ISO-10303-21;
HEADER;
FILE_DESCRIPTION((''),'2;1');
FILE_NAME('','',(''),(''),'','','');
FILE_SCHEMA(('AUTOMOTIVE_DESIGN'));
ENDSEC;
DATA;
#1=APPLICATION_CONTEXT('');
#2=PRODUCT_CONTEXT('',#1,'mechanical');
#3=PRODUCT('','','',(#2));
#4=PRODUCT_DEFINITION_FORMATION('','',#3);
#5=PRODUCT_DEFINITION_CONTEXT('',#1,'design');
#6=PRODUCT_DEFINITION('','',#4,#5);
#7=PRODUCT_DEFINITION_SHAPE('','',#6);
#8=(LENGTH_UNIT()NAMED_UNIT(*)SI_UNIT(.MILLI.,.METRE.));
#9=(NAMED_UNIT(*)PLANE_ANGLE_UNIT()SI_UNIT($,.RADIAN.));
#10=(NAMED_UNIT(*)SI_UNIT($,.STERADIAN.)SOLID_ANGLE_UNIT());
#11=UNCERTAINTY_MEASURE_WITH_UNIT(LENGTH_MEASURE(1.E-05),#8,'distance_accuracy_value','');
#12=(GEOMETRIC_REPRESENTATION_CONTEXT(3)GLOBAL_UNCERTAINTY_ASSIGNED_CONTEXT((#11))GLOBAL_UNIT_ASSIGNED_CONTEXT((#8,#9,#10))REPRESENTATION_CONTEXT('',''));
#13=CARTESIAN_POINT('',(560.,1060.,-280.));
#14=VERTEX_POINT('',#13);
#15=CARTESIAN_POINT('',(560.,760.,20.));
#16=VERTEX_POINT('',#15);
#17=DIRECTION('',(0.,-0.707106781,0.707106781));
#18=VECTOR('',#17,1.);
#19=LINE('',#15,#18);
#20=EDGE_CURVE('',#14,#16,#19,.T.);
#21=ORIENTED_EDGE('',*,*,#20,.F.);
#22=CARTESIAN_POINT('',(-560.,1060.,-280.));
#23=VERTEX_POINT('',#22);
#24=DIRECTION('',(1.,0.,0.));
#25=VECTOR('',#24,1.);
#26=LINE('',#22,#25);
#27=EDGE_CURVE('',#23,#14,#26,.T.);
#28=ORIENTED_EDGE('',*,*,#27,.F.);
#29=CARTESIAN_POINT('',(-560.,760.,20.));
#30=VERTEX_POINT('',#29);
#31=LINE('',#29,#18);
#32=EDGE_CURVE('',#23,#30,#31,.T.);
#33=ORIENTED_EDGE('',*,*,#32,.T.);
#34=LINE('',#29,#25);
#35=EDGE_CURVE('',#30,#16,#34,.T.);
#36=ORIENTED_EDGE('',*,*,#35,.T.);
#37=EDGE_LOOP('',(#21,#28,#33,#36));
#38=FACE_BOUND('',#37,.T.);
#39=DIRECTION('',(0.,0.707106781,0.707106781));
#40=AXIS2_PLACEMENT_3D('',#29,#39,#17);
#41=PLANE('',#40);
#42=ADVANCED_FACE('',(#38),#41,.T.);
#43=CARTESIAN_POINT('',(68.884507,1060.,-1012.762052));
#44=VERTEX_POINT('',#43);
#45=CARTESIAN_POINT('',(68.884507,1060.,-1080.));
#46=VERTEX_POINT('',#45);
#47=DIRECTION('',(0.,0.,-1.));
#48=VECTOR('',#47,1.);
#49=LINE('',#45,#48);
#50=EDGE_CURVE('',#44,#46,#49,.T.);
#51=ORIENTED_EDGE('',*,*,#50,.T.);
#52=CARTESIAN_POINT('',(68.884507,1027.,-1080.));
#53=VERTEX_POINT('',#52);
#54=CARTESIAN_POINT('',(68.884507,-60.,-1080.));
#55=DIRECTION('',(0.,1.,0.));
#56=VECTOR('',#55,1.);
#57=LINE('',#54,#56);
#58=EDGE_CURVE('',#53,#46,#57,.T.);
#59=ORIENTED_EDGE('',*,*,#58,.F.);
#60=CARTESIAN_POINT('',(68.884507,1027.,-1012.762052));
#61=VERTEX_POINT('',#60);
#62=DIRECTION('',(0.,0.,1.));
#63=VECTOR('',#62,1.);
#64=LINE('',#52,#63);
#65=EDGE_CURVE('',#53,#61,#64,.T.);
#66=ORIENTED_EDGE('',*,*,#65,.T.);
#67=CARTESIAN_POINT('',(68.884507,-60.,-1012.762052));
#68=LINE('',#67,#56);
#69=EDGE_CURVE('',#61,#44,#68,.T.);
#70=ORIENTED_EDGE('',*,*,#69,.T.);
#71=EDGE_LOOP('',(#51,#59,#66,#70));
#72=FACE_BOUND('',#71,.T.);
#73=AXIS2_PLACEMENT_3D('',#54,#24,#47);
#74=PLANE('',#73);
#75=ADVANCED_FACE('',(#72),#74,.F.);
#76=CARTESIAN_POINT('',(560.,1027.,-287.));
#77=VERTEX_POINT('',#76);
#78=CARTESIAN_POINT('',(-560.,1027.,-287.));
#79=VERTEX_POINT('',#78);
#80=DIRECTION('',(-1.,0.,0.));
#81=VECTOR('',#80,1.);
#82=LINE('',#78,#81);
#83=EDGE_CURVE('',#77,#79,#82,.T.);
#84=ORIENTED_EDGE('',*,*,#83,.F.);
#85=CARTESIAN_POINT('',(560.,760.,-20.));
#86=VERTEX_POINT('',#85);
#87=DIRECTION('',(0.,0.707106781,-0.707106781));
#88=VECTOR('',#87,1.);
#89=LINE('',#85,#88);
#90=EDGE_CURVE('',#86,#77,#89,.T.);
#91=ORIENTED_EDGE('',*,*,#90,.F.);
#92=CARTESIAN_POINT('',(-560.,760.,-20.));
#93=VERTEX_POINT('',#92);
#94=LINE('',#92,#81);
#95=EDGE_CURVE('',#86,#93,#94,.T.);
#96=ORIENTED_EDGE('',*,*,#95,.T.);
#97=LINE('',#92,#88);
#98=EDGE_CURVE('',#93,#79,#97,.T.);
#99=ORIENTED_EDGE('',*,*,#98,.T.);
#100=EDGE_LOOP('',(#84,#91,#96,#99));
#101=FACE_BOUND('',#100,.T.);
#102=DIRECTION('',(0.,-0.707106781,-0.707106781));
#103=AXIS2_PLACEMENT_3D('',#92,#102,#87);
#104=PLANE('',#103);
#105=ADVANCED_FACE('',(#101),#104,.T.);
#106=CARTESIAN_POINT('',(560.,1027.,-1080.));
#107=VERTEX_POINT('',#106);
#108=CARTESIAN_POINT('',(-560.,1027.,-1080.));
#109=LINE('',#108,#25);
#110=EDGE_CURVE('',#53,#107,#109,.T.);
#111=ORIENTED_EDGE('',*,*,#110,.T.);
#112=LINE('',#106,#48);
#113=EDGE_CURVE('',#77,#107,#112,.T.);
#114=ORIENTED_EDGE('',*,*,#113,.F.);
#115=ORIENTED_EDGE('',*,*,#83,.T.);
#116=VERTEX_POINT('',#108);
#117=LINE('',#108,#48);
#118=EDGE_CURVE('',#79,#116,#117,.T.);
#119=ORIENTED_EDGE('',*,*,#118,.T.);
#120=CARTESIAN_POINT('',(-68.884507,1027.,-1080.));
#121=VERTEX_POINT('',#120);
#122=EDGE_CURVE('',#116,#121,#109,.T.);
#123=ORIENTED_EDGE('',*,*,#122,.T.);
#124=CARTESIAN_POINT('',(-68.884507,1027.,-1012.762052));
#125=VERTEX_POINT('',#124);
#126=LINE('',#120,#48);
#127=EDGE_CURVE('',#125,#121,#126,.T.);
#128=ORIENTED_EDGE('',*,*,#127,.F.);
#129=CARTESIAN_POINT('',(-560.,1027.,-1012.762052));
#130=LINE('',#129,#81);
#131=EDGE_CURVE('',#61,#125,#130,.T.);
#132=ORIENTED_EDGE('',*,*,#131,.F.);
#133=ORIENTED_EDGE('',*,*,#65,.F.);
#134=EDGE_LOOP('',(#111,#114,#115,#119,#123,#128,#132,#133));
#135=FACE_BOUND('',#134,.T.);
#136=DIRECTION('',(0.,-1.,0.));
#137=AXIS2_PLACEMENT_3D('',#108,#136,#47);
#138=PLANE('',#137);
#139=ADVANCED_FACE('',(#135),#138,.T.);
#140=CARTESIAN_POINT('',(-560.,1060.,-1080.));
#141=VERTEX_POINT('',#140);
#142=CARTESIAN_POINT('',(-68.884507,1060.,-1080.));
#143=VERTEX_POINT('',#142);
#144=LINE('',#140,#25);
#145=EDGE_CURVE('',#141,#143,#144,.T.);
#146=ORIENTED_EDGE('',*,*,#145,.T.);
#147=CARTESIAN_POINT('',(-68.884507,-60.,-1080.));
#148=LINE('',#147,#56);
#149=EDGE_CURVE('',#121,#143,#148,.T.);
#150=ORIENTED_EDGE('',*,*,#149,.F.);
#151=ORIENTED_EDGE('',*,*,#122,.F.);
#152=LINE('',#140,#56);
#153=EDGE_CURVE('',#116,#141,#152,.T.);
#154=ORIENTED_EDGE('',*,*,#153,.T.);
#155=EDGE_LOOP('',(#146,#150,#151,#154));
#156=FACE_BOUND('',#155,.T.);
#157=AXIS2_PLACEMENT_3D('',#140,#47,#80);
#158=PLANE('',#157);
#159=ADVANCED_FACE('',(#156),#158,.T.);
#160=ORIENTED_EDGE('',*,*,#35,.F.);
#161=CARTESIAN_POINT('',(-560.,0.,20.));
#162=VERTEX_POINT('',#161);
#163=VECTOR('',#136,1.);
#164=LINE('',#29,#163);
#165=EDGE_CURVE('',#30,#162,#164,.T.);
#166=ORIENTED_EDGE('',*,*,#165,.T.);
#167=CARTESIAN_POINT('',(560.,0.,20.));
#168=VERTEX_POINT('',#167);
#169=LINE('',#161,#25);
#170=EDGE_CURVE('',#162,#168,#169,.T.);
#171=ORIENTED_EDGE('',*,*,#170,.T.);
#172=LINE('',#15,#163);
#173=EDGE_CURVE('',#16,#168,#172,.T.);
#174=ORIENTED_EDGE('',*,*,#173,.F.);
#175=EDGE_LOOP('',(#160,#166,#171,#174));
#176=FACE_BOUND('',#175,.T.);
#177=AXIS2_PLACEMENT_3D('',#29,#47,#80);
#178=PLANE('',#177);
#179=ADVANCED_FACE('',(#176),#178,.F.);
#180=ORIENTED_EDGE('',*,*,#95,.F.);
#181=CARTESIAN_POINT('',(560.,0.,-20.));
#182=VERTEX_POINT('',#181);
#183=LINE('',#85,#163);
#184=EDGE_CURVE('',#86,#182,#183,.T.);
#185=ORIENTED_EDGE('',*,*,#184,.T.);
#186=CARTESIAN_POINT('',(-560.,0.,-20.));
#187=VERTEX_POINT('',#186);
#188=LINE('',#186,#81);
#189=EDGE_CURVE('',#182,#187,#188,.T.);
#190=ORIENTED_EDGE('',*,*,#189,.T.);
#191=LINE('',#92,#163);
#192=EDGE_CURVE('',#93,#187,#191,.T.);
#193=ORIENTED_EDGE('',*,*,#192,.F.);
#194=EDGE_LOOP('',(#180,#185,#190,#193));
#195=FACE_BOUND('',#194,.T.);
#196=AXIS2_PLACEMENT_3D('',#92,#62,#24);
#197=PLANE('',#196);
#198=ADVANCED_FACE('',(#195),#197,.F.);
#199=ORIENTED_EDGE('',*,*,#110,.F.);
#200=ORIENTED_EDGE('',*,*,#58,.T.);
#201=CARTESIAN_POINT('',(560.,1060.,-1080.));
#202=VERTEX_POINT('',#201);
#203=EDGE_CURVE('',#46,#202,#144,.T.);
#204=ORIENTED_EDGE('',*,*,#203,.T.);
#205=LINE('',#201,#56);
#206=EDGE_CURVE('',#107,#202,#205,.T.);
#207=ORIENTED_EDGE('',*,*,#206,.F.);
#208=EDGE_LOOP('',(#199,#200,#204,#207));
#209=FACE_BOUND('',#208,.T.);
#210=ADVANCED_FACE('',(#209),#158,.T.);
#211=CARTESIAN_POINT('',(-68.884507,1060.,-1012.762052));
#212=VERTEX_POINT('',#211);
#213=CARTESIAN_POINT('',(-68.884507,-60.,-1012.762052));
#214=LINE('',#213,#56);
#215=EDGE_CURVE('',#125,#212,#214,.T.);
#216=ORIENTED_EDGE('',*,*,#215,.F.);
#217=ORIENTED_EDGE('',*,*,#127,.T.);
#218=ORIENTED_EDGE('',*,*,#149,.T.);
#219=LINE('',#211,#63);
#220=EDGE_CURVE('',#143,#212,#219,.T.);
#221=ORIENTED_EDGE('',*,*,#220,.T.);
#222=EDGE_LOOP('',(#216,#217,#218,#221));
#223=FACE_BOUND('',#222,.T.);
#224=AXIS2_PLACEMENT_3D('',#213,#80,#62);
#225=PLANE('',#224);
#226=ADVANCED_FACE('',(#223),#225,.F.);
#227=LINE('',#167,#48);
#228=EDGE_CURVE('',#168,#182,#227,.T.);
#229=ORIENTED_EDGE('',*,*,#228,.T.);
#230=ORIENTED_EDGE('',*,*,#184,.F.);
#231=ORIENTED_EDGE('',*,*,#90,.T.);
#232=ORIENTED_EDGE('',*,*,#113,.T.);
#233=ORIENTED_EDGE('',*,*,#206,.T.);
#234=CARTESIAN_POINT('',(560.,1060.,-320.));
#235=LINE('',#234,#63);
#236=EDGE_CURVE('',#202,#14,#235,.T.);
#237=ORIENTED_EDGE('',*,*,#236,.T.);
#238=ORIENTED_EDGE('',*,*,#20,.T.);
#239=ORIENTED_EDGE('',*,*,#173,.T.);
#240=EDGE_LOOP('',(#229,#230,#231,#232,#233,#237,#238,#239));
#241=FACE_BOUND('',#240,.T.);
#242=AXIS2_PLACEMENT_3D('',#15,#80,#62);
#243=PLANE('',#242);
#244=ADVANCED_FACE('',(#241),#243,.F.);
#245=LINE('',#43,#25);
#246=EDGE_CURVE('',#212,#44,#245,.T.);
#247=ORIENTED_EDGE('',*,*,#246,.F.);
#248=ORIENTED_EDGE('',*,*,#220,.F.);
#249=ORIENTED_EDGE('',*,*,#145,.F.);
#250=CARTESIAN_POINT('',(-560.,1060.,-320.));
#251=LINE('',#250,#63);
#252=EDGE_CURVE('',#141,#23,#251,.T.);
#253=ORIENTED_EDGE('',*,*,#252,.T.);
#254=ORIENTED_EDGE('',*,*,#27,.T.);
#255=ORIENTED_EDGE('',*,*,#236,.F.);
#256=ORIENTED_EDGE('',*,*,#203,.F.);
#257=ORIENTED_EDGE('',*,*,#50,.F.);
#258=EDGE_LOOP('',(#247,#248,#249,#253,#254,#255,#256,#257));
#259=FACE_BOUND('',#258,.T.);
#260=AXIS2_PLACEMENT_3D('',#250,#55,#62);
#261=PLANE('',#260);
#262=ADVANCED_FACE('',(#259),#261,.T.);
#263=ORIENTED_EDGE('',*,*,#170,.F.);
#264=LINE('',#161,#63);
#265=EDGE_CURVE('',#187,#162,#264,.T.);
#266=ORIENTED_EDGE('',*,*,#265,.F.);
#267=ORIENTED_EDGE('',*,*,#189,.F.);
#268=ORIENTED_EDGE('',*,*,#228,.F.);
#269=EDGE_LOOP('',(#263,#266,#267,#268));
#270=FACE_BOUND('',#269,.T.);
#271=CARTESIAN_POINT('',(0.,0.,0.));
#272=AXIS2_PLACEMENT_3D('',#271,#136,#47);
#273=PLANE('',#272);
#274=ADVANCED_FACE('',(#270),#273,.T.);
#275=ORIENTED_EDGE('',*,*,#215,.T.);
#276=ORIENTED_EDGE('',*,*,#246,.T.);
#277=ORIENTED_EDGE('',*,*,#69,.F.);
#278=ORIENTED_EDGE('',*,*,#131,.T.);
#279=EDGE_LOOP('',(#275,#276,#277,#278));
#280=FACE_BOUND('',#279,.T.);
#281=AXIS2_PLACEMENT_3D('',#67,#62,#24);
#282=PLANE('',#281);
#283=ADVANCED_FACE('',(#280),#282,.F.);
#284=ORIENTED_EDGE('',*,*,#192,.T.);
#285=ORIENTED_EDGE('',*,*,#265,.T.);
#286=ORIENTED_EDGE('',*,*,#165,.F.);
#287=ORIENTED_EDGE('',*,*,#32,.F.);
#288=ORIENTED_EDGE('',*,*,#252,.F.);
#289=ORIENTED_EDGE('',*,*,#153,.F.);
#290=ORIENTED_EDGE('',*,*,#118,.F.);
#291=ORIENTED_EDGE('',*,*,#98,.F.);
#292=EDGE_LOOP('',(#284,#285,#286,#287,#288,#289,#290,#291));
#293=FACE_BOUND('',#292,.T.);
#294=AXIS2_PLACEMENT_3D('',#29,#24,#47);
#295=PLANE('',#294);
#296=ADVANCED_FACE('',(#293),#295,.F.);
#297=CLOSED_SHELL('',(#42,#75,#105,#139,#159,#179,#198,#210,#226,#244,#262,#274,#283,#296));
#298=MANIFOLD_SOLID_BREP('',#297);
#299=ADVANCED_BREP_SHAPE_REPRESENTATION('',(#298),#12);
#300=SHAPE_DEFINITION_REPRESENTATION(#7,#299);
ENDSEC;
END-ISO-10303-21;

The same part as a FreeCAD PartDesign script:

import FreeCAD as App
import Part
import Sketcher
from FreeCAD import Vector
Q = App.Units.Quantity

doc = App.newDocument("Part")
body = doc.addObject("PartDesign::Body", "Body")

sketch1 = body.newObject("Sketcher::SketchObject", "Sketch")
sketch1.AttachmentSupport = (doc.getObject("XZ_Plane"), [""])
sketch1.MapMode = "FlatFace"
sketch1.addGeometry(Part.LineSegment(Vector(-560, -20, 0), Vector(-560, 20, 0)), False)
sketch1.addGeometry(Part.LineSegment(Vector(-560, 20, 0), Vector(560, 20, 0)), False)
sketch1.addGeometry(Part.LineSegment(Vector(560, 20, 0), Vector(560, -20, 0)), False)
sketch1.addGeometry(Part.LineSegment(Vector(560, -20, 0), Vector(-560, -20, 0)), False)
sketch1.addConstraint(Sketcher.Constraint("Coincident", 0, 2, 1, 1))
sketch1.addConstraint(Sketcher.Constraint("Coincident", 1, 2, 2, 1))
sketch1.addConstraint(Sketcher.Constraint("Coincident", 2, 2, 3, 1))
sketch1.addConstraint(Sketcher.Constraint("Coincident", 3, 2, 0, 1))
sketch1.addConstraint(Sketcher.Constraint("Vertical", 0))
sketch1.addConstraint(Sketcher.Constraint("Horizontal", 1))
sketch1.addConstraint(Sketcher.Constraint("Vertical", 2))
sketch1.addConstraint(Sketcher.Constraint("Horizontal", 3))
sketch1.addConstraint(Sketcher.Constraint("Symmetric", 0, 2, 2, 2, -1, 1))
sketch1.addConstraint(Sketcher.Constraint("DistanceX", 1, 1, 1, 2, 1120.0))
sketch1.addConstraint(Sketcher.Constraint("DistanceY", 0, 1, 0, 2, 40.0))
pad1 = body.newObject("PartDesign::Pad", "Pad")
pad1.Profile = sketch1
pad1.Length = 760
pad1.Reversed = True

sketch2 = body.newObject("Sketcher::SketchObject", "Sketch001")
sketch2.AttachmentSupport = (doc.getObject("YZ_Plane"), [""])
sketch2.MapMode = "FlatFace"
sketch2.AttachmentOffset = App.Placement(Vector(0, 0, 560), App.Rotation())
sketch2.addGeometry(Part.LineSegment(Vector(1060, -280, 0), Vector(760, 20, 0)), False)
sketch2.addGeometry(Part.LineSegment(Vector(760, 20, 0), Vector(760, -20, 0)), False)
sketch2.addGeometry(Part.LineSegment(Vector(760, -20, 0), Vector(1060, -320, 0)), False)
sketch2.addGeometry(Part.LineSegment(Vector(1060, -320, 0), Vector(1060, -280, 0)), False)
sketch2.addConstraint(Sketcher.Constraint("Coincident", 0, 2, 1, 1))
sketch2.addConstraint(Sketcher.Constraint("Coincident", 1, 2, 2, 1))
sketch2.addConstraint(Sketcher.Constraint("Coincident", 2, 2, 3, 1))
sketch2.addConstraint(Sketcher.Constraint("Coincident", 3, 2, 0, 1))
sketch2.addConstraint(Sketcher.Constraint("Vertical", 1))
sketch2.addConstraint(Sketcher.Constraint("Vertical", 3))
sketch2.addConstraint(Sketcher.Constraint("Parallel", 0, 2))
sketch2.addConstraint(Sketcher.Constraint("DistanceY", 1, 2, 1, 1, 40.0))
sketch2.addConstraint(Sketcher.Constraint("Angle", 0, Q("135 deg")))
sketch2.addConstraint(Sketcher.Constraint("DistanceX", -1, 1, 0, 2, 760.0))
sketch2.addConstraint(Sketcher.Constraint("DistanceY", -1, 1, 0, 2, 20.0))
sketch2.addConstraint(Sketcher.Constraint("DistanceX", -1, 1, 2, 2, 1060.0))
pad2 = body.newObject("PartDesign::Pad", "Pad001")
pad2.Profile = sketch2
pad2.Length = 1120
pad2.Reversed = True

sketch3 = body.newObject("Sketcher::SketchObject", "Sketch002")
sketch3.AttachmentSupport = (doc.getObject("YZ_Plane"), [""])
sketch3.MapMode = "FlatFace"
sketch3.AttachmentOffset = App.Placement(Vector(0, 0, 560), App.Rotation())
sketch3.addGeometry(Part.LineSegment(Vector(1060, -1080, 0), Vector(1060, -320, 0)), False)
sketch3.addGeometry(Part.LineSegment(Vector(1060, -320, 0), Vector(1027, -285.570779, 0)), False)
sketch3.addGeometry(Part.LineSegment(Vector(1027, -285.570779, 0), Vector(1027, -1080, 0)), False)
sketch3.addGeometry(Part.LineSegment(Vector(1027, -1080, 0), Vector(1060, -1080, 0)), False)
sketch3.addConstraint(Sketcher.Constraint("Coincident", 0, 2, 1, 1))
sketch3.addConstraint(Sketcher.Constraint("Coincident", 1, 2, 2, 1))
sketch3.addConstraint(Sketcher.Constraint("Coincident", 2, 2, 3, 1))
sketch3.addConstraint(Sketcher.Constraint("Coincident", 3, 2, 0, 1))
sketch3.addConstraint(Sketcher.Constraint("Vertical", 0))
sketch3.addConstraint(Sketcher.Constraint("Vertical", 2))
sketch3.addConstraint(Sketcher.Constraint("Horizontal", 3))
sketch3.addConstraint(Sketcher.Constraint("DistanceX", 3, 1, 3, 2, 33.0))
sketch3.addConstraint(Sketcher.Constraint("DistanceY", 0, 1, 0, 2, 760.0))
sketch3.addConstraint(Sketcher.Constraint("DistanceX", -1, 1, 0, 2, 1060.0))
sketch3.addConstraint(Sketcher.Constraint("DistanceY", 0, 2, -1, 1, 320.0))
sketch3.addConstraint(Sketcher.Constraint("DistanceY", 2, 2, 2, 1, 794.429221))
pad3 = body.newObject("PartDesign::Pad", "Pad002")
pad3.Profile = sketch3
pad3.Length = 1120
pad3.Reversed = True

sketch4 = body.newObject("Sketcher::SketchObject", "Sketch003")
sketch4.AttachmentSupport = (doc.getObject("XZ_Plane"), [""])
sketch4.MapMode = "FlatFace"
sketch4.AttachmentOffset = App.Placement(Vector(0, 0, -1060), App.Rotation())
sketch4.addGeometry(Part.LineSegment(Vector(-68.884507, -1080, 0), Vector(-68.884507, -1012.762052, 0)), False)
sketch4.addGeometry(Part.LineSegment(Vector(-68.884507, -1012.762052, 0), Vector(68.884507, -1012.762052, 0)), False)
sketch4.addGeometry(Part.LineSegment(Vector(68.884507, -1012.762052, 0), Vector(68.884507, -1080, 0)), False)
sketch4.addGeometry(Part.LineSegment(Vector(68.884507, -1080, 0), Vector(-68.884507, -1080, 0)), False)
sketch4.addConstraint(Sketcher.Constraint("Coincident", 0, 2, 1, 1))
sketch4.addConstraint(Sketcher.Constraint("Coincident", 1, 2, 2, 1))
sketch4.addConstraint(Sketcher.Constraint("Coincident", 2, 2, 3, 1))
sketch4.addConstraint(Sketcher.Constraint("Coincident", 3, 2, 0, 1))
sketch4.addConstraint(Sketcher.Constraint("Vertical", 0))
sketch4.addConstraint(Sketcher.Constraint("Horizontal", 1))
sketch4.addConstraint(Sketcher.Constraint("Vertical", 2))
sketch4.addConstraint(Sketcher.Constraint("Horizontal", 3))
sketch4.addConstraint(Sketcher.Constraint("DistanceY", 2, 2, -1, 1, 1080.0))
sketch4.addConstraint(Sketcher.Constraint("DistanceY", 0, 1, 0, 2, 67.237948))
sketch4.addConstraint(Sketcher.Constraint("DistanceX", 1, 1, 1, 2, 137.769014))
sketch4.addConstraint(Sketcher.Constraint("DistanceX", 0, 2, -1, 1, 68.884507))
pocket1 = body.newObject("PartDesign::Pocket", "Pocket")
pocket1.Profile = sketch4
pocket1.Length = 1120
pocket1.Reversed = True

doc.recompute()
